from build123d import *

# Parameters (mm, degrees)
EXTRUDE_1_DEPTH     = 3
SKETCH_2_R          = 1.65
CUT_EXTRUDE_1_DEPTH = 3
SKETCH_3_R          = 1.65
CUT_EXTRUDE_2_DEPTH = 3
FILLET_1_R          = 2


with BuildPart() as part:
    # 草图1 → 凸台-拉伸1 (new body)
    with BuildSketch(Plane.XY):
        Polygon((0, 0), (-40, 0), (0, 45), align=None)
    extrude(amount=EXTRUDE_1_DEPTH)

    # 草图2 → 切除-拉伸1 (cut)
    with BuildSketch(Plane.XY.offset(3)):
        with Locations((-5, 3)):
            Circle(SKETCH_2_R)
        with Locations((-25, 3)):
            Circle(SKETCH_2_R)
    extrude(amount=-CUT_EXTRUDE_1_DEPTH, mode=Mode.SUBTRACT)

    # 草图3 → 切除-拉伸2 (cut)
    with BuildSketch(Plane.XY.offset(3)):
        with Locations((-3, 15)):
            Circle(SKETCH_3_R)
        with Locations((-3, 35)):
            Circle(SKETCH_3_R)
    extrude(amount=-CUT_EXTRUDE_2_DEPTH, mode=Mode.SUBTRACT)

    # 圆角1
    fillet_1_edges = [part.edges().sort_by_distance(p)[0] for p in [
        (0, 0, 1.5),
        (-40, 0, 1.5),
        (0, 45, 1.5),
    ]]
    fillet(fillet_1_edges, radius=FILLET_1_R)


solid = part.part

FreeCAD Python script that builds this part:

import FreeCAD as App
import Part
import Sketcher
Q = App.Units.Quantity


def edges_at(feature, points):
    """Names of the edges that pass closest to the given points."""
    edges = feature.Shape.Edges
    near = lambda p: min(range(len(edges)), key=lambda i: edges[i].distToShape(Part.Vertex(*p))[0])
    return sorted({f"Edge{near(p) + 1}" for p in points})

doc = App.newDocument("Part")
body = doc.addObject("PartDesign::Body", "Body")

# Sketch on XY plane
sketch1 = body.newObject("Sketcher::SketchObject", "Sketch")
sketch1.AttachmentSupport = (doc.getObject("XY_Plane"), [""])
sketch1.MapMode = "FlatFace"
sketch1.addGeometry(Part.LineSegment(App.Vector(-40, 0, 0), App.Vector(0, 0, 0)), False)
sketch1.addGeometry(Part.LineSegment(App.Vector(0, 0, 0), App.Vector(0, 45, 0)), False)
sketch1.addGeometry(Part.LineSegment(App.Vector(0, 45, 0), App.Vector(-40, 0, 0)), False)
sketch1.addConstraint(Sketcher.Constraint("Coincident", 0, 2, 1, 1))
sketch1.addConstraint(Sketcher.Constraint("Coincident", 1, 2, 2, 1))
sketch1.addConstraint(Sketcher.Constraint("Coincident", 2, 2, 0, 1))
sketch1.addConstraint(Sketcher.Constraint("Horizontal", 0))
sketch1.addConstraint(Sketcher.Constraint("Vertical", 1))
sketch1.addConstraint(Sketcher.Constraint("Coincident", 0, 2, -1, 1))
sketch1.addConstraint(Sketcher.Constraint("DistanceX", 0, 1, 0, 2, Q("40 mm")))
sketch1.addConstraint(Sketcher.Constraint("DistanceY", 1, 1, 1, 2, Q("45 mm")))
pad1 = body.newObject("PartDesign::Pad", "Pad")
pad1.Profile = sketch1
pad1.Length = 3

# Sketch on XY plane
sketch2 = body.newObject("Sketcher::SketchObject", "Sketch001")
sketch2.AttachmentSupport = (doc.getObject("XY_Plane"), [""])
sketch2.MapMode = "FlatFace"
sketch2.AttachmentOffset = App.Placement(App.Vector(0, 0, 3), App.Rotation())
sketch2.addGeometry(Part.Circle(App.Vector(-5, 3, 0), App.Vector(0, 0, 1), 1.6), False)
sketch2.addGeometry(Part.Circle(App.Vector(-25, 3, 0), App.Vector(0, 0, 1), 1.6), False)
sketch2.addConstraint(Sketcher.Constraint("Equal", 0, 1))
sketch2.addConstraint(Sketcher.Constraint("Horizontal", 0, 3, 1, 3))
sketch2.addConstraint(Sketcher.Constraint("Diameter", 0, Q("3.3 mm")))
sketch2.addConstraint(Sketcher.Constraint("DistanceX", 0, 3, -1, 1, Q("5 mm")))
sketch2.addConstraint(Sketcher.Constraint("DistanceY", -1, 1, 0, 3, Q("3 mm")))
sketch2.addConstraint(Sketcher.Constraint("DistanceX", 1, 3, -1, 1, Q("25 mm")))
pocket1 = body.newObject("PartDesign::Pocket", "Pocket")
pocket1.Profile = sketch2
pocket1.Length = 3

# Sketch on XY plane
sketch3 = body.newObject("Sketcher::SketchObject", "Sketch002")
sketch3.AttachmentSupport = (doc.getObject("XY_Plane"), [""])
sketch3.MapMode = "FlatFace"
sketch3.AttachmentOffset = App.Placement(App.Vector(0, 0, 3), App.Rotation())
sketch3.addGeometry(Part.Circle(App.Vector(-3, 15, 0), App.Vector(0, 0, 1), 1.6), False)
sketch3.addGeometry(Part.Circle(App.Vector(-3, 35, 0), App.Vector(0, 0, 1), 1.6), False)
sketch3.addConstraint(Sketcher.Constraint("Equal", 0, 1))
sketch3.addConstraint(Sketcher.Constraint("Vertical", 0, 3, 1, 3))
sketch3.addConstraint(Sketcher.Constraint("Diameter", 0, Q("3.3 mm")))
sketch3.addConstraint(Sketcher.Constraint("DistanceX", 0, 3, -1, 1, Q("3 mm")))
sketch3.addConstraint(Sketcher.Constraint("DistanceY", -1, 1, 0, 3, Q("15 mm")))
sketch3.addConstraint(Sketcher.Constraint("DistanceY", -1, 1, 1, 3, Q("35 mm")))
pocket2 = body.newObject("PartDesign::Pocket", "Pocket001")
pocket2.Profile = sketch3
pocket2.Length = 3
doc.recompute()

fillet = body.newObject("PartDesign::Fillet", "Fillet")
fillet.Base = (pocket2, edges_at(pocket2, [(0, 0, 1.5), (-40, 0, 1.5), (0, 45, 1.5)]))
fillet.Radius = 2

doc.recompute()
